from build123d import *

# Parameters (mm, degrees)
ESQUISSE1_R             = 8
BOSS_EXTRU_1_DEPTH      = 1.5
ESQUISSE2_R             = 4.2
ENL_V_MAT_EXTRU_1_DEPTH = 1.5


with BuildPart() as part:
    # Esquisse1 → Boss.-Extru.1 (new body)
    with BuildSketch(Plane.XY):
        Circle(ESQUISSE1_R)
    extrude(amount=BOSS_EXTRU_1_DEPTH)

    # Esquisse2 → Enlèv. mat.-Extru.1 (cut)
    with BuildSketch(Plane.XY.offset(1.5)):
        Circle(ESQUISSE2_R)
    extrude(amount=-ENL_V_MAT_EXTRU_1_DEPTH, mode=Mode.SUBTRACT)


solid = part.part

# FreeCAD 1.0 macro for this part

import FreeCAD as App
import Part
import Sketcher

doc = App.newDocument("Part")
body = doc.addObject("PartDesign::Body", "Body")

# Sketch on XY plane
sketch1 = body.newObject("Sketcher::SketchObject", "Sketch")
sketch1.AttachmentSupport = (doc.getObject("XY_Plane"), [""])
sketch1.MapMode = "FlatFace"
sketch1.addGeometry(Part.Circle(App.Vector(0, 0, 0), App.Vector(0, 0, 1), 8), False)
sketch1.addConstraint([
    Sketcher.Constraint("Coincident", 0, 3, -1, 1),
    Sketcher.Constraint("Diameter", 0, 16.0),
])
pad1 = body.newObject("PartDesign::Pad", "Pad")
pad1.Profile = sketch1
pad1.Length = 1.5

# Sketch on XY plane
sketch2 = body.newObject("Sketcher::SketchObject", "Sketch001")
sketch2.AttachmentSupport = (doc.getObject("XY_Plane"), [""])
sketch2.MapMode = "FlatFace"
sketch2.AttachmentOffset = App.Placement(App.Vector(0, 0, 1.5), App.Rotation())
sketch2.addGeometry(Part.Circle(App.Vector(0, 0, 0), App.Vector(0, 0, 1), 4.2), False)
sketch2.addConstraint([
    Sketcher.Constraint("Coincident", 0, 3, -1, 1),
    Sketcher.Constraint("Diameter", 0, 8.4),
])
pocket1 = body.newObject("PartDesign::Pocket", "Pocket")
pocket1.Profile = sketch2
pocket1.Length = 1.5

doc.recompute()
